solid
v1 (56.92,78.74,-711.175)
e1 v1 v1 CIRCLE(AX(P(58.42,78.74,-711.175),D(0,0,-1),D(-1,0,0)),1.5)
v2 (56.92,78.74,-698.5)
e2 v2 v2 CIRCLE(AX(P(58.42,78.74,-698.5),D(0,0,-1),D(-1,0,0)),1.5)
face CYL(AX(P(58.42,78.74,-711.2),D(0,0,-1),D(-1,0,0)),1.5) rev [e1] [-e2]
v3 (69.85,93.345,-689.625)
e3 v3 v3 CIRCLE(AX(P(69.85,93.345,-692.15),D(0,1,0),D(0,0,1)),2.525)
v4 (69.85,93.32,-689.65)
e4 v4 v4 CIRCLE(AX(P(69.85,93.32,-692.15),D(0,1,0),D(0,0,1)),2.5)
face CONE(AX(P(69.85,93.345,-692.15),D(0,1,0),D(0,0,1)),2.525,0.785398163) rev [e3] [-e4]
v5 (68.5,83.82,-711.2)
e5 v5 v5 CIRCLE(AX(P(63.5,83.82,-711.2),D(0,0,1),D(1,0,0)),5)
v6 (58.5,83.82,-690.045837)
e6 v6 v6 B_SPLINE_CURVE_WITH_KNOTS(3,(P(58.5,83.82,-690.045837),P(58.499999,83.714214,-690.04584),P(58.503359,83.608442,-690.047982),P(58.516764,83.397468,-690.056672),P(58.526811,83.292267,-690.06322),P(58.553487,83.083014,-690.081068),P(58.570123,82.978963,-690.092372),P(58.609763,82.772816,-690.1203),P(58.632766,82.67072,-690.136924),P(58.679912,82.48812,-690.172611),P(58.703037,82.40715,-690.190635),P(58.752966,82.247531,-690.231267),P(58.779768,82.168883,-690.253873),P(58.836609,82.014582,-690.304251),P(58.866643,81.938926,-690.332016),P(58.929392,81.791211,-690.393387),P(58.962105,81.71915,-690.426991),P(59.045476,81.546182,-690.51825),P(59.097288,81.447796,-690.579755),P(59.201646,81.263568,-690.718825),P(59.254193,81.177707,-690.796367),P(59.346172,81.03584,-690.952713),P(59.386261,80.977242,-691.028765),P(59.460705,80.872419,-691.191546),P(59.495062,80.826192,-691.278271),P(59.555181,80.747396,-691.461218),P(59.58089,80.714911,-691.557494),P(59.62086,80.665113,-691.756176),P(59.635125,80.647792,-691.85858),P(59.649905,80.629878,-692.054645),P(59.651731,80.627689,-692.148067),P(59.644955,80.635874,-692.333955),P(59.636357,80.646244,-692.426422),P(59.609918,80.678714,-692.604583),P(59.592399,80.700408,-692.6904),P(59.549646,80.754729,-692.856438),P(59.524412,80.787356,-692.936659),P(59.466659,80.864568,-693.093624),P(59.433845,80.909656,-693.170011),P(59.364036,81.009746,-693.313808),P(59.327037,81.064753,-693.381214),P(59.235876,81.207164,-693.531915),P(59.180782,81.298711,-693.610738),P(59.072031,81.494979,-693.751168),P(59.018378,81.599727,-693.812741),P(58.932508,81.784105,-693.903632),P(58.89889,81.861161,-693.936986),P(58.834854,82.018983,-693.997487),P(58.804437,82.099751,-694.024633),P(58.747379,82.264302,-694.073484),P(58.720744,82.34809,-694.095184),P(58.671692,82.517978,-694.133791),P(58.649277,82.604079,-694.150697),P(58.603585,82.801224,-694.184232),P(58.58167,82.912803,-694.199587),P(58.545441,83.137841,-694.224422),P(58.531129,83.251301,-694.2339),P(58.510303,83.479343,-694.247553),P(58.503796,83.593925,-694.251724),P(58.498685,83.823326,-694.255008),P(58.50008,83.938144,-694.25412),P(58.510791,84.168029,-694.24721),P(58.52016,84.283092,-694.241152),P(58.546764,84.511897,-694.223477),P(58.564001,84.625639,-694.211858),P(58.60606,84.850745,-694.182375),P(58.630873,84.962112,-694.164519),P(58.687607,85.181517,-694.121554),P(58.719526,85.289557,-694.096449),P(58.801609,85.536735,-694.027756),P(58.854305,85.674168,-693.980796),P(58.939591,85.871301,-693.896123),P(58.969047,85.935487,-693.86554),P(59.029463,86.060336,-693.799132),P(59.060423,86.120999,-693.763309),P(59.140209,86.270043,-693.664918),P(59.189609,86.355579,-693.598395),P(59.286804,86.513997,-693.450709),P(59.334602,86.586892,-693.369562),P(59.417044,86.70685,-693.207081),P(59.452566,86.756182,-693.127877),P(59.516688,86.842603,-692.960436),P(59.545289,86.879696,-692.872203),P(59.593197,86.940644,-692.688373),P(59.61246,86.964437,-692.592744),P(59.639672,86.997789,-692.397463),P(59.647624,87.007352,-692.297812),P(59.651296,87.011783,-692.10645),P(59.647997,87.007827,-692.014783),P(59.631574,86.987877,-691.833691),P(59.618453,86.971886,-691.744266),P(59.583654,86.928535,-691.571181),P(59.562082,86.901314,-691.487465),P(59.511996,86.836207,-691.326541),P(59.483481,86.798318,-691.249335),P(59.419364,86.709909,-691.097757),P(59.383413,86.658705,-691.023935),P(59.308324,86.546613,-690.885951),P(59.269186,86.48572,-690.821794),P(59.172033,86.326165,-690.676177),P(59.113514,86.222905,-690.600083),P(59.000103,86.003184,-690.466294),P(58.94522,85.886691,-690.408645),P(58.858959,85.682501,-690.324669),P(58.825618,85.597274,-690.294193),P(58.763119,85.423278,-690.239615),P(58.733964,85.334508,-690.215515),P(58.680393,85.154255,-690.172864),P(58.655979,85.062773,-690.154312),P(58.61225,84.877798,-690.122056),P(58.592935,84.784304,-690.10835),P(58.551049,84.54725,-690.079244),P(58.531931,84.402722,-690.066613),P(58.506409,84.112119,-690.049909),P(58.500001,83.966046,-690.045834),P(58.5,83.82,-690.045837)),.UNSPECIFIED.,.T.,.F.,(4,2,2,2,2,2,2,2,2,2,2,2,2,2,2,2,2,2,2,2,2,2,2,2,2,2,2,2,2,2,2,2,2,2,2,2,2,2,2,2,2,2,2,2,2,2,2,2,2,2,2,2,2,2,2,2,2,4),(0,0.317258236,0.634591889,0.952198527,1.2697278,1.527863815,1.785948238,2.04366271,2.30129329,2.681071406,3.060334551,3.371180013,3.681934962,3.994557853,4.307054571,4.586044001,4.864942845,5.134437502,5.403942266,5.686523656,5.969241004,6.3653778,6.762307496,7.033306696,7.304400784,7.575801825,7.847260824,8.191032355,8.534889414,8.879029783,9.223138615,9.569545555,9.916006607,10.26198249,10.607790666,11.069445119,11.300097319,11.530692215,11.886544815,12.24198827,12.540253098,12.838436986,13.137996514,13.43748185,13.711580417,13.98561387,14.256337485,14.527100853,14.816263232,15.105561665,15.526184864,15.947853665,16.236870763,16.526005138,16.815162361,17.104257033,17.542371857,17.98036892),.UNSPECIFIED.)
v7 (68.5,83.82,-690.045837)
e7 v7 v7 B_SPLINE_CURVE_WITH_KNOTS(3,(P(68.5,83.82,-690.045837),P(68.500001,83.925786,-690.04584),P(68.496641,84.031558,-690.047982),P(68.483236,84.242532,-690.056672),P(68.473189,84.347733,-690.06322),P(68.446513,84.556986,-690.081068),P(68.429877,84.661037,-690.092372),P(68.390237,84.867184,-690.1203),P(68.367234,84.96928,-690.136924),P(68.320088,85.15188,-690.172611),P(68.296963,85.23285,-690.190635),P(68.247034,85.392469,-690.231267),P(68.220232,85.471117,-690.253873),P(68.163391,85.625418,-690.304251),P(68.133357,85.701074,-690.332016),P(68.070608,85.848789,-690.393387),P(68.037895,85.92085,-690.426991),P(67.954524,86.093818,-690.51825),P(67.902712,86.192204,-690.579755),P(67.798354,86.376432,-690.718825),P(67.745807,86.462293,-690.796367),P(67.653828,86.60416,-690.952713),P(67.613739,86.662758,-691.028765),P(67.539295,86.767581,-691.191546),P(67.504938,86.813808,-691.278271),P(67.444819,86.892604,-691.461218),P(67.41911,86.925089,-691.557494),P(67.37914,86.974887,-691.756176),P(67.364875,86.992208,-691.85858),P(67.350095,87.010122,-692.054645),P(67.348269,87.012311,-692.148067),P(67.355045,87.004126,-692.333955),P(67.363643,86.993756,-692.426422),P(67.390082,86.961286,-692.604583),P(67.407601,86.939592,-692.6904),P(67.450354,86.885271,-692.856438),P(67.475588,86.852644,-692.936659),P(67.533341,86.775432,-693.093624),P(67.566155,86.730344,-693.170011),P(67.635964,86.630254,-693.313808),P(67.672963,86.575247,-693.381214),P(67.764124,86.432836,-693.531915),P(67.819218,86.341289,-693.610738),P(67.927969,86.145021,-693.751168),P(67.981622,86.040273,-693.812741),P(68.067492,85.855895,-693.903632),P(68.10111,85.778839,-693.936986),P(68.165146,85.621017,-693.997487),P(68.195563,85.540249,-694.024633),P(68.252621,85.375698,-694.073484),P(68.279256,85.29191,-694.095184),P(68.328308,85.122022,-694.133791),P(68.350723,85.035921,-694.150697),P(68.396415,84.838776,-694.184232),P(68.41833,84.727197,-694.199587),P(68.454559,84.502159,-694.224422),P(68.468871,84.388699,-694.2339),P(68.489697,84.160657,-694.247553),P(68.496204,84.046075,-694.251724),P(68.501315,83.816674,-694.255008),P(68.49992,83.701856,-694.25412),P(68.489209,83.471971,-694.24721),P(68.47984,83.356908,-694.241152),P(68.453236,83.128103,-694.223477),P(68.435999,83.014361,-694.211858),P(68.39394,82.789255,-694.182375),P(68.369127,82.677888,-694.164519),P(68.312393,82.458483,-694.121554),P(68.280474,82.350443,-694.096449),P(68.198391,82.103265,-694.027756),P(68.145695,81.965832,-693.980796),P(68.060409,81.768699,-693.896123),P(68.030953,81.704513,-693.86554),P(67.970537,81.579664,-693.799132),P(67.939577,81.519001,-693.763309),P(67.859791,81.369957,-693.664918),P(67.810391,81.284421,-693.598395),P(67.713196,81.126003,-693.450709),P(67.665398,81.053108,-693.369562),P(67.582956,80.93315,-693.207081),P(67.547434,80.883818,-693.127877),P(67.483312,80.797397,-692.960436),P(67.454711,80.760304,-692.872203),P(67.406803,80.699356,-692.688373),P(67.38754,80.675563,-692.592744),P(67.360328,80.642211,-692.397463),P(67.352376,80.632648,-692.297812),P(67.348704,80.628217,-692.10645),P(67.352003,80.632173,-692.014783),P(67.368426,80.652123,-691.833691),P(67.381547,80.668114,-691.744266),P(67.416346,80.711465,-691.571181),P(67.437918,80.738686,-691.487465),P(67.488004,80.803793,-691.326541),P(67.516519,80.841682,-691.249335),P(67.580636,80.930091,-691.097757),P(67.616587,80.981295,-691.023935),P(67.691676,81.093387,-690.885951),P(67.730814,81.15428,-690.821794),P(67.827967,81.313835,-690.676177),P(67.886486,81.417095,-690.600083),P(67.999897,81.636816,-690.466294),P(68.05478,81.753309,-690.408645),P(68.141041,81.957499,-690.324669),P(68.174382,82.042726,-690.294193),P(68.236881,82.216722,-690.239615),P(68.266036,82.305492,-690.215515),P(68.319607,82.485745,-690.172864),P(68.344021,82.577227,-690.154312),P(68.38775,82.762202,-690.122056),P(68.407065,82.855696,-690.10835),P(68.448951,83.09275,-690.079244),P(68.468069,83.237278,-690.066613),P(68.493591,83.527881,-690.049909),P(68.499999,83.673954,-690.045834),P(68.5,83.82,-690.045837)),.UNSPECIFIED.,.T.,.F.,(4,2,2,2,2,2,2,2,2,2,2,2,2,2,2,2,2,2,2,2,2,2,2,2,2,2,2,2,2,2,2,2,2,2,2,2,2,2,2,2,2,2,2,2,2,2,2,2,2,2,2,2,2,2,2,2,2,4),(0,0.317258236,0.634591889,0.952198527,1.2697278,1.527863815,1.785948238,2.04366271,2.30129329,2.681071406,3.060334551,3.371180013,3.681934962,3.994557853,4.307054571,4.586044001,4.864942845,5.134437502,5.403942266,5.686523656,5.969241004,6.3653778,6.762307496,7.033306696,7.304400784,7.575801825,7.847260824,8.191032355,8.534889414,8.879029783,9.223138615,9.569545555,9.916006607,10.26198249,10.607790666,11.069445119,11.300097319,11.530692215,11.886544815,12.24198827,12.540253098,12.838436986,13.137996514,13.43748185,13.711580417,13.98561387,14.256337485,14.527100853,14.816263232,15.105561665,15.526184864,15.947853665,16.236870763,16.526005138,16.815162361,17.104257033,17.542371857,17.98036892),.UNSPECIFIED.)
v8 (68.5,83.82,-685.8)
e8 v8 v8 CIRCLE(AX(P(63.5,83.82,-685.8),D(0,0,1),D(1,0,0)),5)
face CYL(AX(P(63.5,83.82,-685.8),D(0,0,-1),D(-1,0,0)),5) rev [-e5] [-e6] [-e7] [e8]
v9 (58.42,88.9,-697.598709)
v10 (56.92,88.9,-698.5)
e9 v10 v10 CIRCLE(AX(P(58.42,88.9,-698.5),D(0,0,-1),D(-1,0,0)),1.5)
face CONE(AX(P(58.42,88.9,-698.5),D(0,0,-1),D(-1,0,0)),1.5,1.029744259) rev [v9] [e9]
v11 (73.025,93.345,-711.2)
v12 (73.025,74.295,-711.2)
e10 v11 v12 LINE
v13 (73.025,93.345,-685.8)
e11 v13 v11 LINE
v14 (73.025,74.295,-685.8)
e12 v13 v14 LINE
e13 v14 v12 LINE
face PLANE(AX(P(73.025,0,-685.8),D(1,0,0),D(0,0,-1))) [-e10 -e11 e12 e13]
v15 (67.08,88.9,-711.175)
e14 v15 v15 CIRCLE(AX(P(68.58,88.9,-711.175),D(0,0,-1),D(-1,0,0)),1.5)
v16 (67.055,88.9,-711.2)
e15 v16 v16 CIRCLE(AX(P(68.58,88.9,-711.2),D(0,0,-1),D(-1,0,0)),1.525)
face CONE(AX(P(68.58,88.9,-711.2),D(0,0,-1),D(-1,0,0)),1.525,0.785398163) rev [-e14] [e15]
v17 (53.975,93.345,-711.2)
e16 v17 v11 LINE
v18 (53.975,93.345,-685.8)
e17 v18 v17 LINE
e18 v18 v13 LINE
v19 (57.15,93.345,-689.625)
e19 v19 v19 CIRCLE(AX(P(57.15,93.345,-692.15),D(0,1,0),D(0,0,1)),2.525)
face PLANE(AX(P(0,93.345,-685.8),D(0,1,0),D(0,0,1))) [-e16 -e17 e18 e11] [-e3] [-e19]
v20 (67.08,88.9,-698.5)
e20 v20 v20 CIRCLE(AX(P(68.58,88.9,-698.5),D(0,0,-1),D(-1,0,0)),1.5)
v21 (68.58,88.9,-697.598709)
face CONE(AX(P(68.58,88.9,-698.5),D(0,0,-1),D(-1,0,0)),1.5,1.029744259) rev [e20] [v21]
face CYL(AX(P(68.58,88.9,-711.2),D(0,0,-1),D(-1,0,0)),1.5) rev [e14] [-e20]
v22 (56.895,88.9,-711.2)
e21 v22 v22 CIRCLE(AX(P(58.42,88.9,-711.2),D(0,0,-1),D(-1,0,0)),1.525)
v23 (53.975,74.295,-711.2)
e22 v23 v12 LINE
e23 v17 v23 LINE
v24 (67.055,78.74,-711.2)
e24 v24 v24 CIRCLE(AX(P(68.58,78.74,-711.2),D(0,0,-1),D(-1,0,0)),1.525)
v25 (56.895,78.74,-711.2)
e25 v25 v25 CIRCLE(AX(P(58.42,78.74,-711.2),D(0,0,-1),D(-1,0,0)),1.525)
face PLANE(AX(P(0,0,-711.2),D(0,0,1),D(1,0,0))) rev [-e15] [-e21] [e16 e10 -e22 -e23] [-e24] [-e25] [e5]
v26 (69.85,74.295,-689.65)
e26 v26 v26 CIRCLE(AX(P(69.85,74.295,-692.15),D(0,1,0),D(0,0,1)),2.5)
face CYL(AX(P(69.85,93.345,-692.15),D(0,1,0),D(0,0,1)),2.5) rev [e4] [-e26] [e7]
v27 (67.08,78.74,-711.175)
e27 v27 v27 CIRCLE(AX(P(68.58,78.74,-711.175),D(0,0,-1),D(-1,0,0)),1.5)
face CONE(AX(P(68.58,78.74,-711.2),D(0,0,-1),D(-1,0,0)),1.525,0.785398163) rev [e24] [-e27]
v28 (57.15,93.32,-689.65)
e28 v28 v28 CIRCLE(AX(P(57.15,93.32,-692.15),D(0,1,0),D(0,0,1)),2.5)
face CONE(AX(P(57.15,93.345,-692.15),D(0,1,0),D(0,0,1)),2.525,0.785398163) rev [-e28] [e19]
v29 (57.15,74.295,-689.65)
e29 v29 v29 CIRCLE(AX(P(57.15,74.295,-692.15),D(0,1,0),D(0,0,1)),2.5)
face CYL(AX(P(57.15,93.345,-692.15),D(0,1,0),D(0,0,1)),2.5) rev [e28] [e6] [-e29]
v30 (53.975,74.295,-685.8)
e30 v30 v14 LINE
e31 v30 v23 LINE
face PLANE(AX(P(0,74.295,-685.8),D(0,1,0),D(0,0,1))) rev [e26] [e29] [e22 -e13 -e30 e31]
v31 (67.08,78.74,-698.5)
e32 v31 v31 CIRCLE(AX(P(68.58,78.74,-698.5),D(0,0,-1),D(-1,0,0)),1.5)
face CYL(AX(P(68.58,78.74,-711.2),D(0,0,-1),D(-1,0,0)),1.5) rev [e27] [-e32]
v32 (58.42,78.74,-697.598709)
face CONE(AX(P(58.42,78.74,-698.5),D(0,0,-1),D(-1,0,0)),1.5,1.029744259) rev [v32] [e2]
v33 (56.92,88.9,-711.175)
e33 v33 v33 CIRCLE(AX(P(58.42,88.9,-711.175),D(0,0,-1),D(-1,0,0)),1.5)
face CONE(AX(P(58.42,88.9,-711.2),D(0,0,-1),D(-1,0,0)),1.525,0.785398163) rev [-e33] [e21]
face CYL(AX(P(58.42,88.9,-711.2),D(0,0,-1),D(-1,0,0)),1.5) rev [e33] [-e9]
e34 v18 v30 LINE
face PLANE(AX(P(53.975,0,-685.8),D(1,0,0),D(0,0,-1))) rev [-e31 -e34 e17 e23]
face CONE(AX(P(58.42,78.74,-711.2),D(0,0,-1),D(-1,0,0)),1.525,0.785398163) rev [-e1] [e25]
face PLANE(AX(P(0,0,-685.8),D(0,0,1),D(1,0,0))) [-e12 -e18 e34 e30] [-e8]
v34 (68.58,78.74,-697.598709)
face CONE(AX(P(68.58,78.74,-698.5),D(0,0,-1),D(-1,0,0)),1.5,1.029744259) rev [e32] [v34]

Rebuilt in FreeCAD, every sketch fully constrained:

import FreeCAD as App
import Part
import Sketcher

V = App.Vector
Q = App.Units.Quantity

doc = App.newDocument("Part")
body = doc.addObject("PartDesign::Body", "Body")

# Sketch on XY plane
sketch1 = body.newObject("Sketcher::SketchObject", "Sketch")
sketch1.AttachmentSupport = (doc.getObject("XY_Plane"), [""])
sketch1.MapMode = "FlatFace"
sketch1.AttachmentOffset = App.Placement(V(0, 0, -711.2), App.Rotation())
sketch1.addGeometry([
    Part.LineSegment(V(54, 93, 0), V(54, 74, 0)),  # 0
    Part.LineSegment(V(54, 74, 0), V(73, 74, 0)),  # 1
    Part.LineSegment(V(73, 74, 0), V(73, 93, 0)),  # 2
    Part.LineSegment(V(73, 93, 0), V(54, 93, 0)),  # 3
    Part.Circle(V(64, 84, 0), V(0, 0, 1), 5),  # 4
], False)
sketch1.addConstraint([
    Sketcher.Constraint("Coincident", 0, 2, 1, 1),
    Sketcher.Constraint("Coincident", 1, 2, 2, 1),
    Sketcher.Constraint("Coincident", 2, 2, 3, 1),
    Sketcher.Constraint("Coincident", 3, 2, 0, 1),
    Sketcher.Constraint("Vertical", 0),
    Sketcher.Constraint("Horizontal", 1),
    Sketcher.Constraint("Vertical", 2),
    Sketcher.Constraint("Horizontal", 3),
    Sketcher.Constraint("Equal", 3, 0),
    Sketcher.Constraint("Diameter", 4, Q("10 mm")),
    Sketcher.Constraint("DistanceX", 1, 1, 1, 2, Q("19.05 mm")),
    Sketcher.Constraint("DistanceX", -1, 1, 4, 3, Q("63.5 mm")),
    Sketcher.Constraint("DistanceY", -1, 1, 4, 3, Q("83.82 mm")),
    Sketcher.Constraint("DistanceX", -1, 1, 0, 2, Q("53.975 mm")),
    Sketcher.Constraint("DistanceY", -1, 1, 0, 2, Q("74.295 mm")),
])
pad1 = body.newObject("PartDesign::Pad", "Pad")
pad1.Profile = sketch1
pad1.Length = 25.4

# Sketch on XZ plane
sketch2 = body.newObject("Sketcher::SketchObject", "Sketch001")
sketch2.AttachmentSupport = (doc.getObject("XZ_Plane"), [""])
sketch2.MapMode = "FlatFace"
sketch2.AttachmentOffset = App.Placement(V(0, 0, -93.345), App.Rotation())
sketch2.addGeometry([
    Part.Circle(V(57.1, -692.1, 0), V(0, 0, 1), 2.5),
    Part.Circle(V(69.8, -692.1, 0), V(0, 0, 1), 2.5),
], False)
sketch2.addConstraint([
    Sketcher.Constraint("Equal", 0, 1),
    Sketcher.Constraint("Horizontal", 0, 3, 1, 3),
    Sketcher.Constraint("Diameter", 0, Q("5 mm")),
    Sketcher.Constraint("DistanceX", 0, 3, 1, 3, Q("12.7 mm")),
    Sketcher.Constraint("DistanceX", -1, 1, 0, 3, Q("57.15 mm")),
    Sketcher.Constraint("DistanceY", 0, 3, -1, 1, Q("692.15 mm")),
])
doc.recompute()
hole = body.newObject("PartDesign::Hole", "Hole")
hole.Profile = sketch2
hole.ThreadType = "None"
hole.Diameter = 5
hole.DepthType = "Dimension"
hole.Depth = 25.4
hole.DrillPoint = "Angled"
hole.DrillPointAngle = 118
hole.HoleCutType = "Countersink"
hole.HoleCutDiameter = 5.05
hole.HoleCutCountersinkAngle = 90
hole.Reversed = True

# Sketch on XY plane
sketch3 = body.newObject("Sketcher::SketchObject", "Sketch002")
sketch3.AttachmentSupport = (doc.getObject("XY_Plane"), [""])
sketch3.MapMode = "FlatFace"
sketch3.AttachmentOffset = App.Placement(V(0, 0, -711.2), App.Rotation())
sketch3.addGeometry([
    Part.Circle(V(58.4, 78.7, 0), V(0, 0, 1), 1.5),
    Part.Circle(V(68.6, 78.7, 0), V(0, 0, 1), 1.5),
    Part.Circle(V(58.4, 88.9, 0), V(0, 0, 1), 1.5),
    Part.Circle(V(68.6, 88.9, 0), V(0, 0, 1), 1.5),
], False)
sketch3.addConstraint([
    Sketcher.Constraint("Equal", 0, 1),
    Sketcher.Constraint("Equal", 1, 2),
    Sketcher.Constraint("Equal", 2, 3),
    Sketcher.Constraint("Horizontal", 0, 3, 1, 3),
    Sketcher.Constraint("Horizontal", 2, 3, 3, 3),
    Sketcher.Constraint("Vertical", 0, 3, 2, 3),
    Sketcher.Constraint("Vertical", 1, 3, 3, 3),
    Sketcher.Constraint("Diameter", 0, Q("3 mm")),
    Sketcher.Constraint("DistanceY", -1, 1, 2, 3, Q("88.9 mm")),
    Sketcher.Constraint("DistanceX", -1, 1, 0, 3, Q("58.42 mm")),
    Sketcher.Constraint("DistanceY", -1, 1, 0, 3, Q("78.74 mm")),
    Sketcher.Constraint("DistanceX", -1, 1, 1, 3, Q("68.58 mm")),
])
doc.recompute()
hole2 = body.newObject("PartDesign::Hole", "Hole001")
hole2.Profile = sketch3
hole2.ThreadType = "None"
hole2.Diameter = 3
hole2.DepthType = "Dimension"
hole2.Depth = 12.7
hole2.DrillPoint = "Angled"
hole2.DrillPointAngle = 118
hole2.HoleCutType = "Countersink"
hole2.HoleCutDiameter = 3.05
hole2.HoleCutCountersinkAngle = 90
hole2.Reversed = True

doc.recompute()
